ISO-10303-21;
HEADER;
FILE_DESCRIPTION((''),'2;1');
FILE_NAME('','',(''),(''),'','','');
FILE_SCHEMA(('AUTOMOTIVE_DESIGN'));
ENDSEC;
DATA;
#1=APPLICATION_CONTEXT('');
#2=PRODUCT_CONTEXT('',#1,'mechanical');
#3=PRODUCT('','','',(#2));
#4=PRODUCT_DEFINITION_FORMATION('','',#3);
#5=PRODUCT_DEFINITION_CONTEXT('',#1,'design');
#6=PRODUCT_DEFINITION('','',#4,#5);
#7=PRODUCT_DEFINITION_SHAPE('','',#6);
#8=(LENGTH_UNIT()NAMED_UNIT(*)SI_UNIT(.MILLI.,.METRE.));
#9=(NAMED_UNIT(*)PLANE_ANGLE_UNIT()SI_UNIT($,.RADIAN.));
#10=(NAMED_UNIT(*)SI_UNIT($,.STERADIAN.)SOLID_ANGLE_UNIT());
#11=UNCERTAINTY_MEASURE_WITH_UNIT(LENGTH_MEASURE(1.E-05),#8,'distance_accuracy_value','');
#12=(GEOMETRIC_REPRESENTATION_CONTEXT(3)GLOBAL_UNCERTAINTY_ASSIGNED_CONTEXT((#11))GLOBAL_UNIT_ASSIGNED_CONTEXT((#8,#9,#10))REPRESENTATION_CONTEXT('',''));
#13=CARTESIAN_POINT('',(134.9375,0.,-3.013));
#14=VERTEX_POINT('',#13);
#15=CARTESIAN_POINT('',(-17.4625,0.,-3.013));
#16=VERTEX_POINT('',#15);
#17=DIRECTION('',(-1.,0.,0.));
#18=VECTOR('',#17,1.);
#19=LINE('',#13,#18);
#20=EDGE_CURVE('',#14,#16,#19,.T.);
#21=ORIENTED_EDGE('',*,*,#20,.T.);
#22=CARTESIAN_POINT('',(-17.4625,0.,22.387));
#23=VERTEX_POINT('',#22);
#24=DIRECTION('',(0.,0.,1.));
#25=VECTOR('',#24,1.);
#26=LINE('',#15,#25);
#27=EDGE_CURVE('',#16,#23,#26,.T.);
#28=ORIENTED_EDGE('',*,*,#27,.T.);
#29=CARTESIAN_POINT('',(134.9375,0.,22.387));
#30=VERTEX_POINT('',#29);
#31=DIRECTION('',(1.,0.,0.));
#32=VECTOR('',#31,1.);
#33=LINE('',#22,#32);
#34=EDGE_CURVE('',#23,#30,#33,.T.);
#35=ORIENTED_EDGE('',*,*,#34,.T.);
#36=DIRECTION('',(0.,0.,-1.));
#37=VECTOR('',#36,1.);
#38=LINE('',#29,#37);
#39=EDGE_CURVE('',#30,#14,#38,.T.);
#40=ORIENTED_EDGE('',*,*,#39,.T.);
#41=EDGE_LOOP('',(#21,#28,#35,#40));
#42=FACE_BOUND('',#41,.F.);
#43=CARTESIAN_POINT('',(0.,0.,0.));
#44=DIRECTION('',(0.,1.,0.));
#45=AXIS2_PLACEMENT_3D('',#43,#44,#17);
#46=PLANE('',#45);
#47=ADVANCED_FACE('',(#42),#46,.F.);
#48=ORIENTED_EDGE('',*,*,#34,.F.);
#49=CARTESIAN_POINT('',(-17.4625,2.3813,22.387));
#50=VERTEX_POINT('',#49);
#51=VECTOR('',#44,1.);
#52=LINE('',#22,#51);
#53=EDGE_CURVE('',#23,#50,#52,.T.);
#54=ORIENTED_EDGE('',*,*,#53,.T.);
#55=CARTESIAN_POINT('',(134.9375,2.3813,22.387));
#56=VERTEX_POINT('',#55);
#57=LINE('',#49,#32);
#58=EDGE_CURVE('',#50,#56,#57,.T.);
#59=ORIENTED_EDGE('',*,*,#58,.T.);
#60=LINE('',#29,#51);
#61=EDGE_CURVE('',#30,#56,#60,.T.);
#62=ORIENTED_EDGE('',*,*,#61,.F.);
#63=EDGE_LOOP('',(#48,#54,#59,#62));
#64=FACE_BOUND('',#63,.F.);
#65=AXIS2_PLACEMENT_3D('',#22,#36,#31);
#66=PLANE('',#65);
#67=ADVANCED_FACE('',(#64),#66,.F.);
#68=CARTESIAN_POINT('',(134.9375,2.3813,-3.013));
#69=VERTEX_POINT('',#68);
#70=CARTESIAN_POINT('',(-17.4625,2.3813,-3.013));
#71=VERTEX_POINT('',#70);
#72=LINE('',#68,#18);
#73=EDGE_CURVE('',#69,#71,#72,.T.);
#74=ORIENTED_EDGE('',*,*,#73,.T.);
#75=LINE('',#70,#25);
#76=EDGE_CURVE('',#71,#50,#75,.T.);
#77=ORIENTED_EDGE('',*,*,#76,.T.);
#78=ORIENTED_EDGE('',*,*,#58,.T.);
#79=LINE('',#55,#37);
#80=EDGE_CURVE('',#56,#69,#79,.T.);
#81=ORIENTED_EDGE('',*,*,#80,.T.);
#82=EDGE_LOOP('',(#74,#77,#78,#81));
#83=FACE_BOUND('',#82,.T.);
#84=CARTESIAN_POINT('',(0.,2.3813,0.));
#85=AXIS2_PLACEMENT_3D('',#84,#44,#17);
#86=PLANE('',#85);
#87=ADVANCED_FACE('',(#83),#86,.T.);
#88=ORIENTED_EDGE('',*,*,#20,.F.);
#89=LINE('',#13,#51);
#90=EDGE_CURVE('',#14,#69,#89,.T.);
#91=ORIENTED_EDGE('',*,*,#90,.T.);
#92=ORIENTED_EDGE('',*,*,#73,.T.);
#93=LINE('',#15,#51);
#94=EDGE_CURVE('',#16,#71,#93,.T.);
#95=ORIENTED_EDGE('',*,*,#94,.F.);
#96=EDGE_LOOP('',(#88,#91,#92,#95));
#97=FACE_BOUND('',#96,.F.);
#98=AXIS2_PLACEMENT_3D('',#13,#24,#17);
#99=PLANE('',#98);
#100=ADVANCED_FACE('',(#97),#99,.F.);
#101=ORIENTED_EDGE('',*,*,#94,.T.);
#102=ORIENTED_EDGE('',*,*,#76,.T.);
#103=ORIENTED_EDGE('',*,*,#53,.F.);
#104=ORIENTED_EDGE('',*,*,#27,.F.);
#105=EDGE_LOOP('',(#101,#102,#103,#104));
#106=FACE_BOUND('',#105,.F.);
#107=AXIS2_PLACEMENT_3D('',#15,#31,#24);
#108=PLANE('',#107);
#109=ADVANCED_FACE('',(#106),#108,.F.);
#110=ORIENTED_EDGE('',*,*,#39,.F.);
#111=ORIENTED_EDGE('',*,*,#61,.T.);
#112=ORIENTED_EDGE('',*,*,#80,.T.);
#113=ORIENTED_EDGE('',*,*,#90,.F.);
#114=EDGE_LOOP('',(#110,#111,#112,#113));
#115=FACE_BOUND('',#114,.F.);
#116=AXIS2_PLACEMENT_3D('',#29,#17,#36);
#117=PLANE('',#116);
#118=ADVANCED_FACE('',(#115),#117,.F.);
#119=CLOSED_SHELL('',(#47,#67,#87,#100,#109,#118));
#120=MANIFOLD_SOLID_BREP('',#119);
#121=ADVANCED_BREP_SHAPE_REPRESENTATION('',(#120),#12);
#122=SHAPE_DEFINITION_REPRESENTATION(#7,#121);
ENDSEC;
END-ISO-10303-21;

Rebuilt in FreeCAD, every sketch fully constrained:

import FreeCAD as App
import Part
import Sketcher
from FreeCAD import Vector
Q = App.Units.Quantity


def add_polygon(sketch, points):
    """Adds a closed chain of lines whose ends are joined by coincident constraints."""
    first, n = sketch.GeometryCount, len(points)
    for a, b in zip(points, points[1:] + points[:1]):
        sketch.addGeometry(Part.LineSegment(App.Vector(*a, 0), App.Vector(*b, 0)), False)
    for i in range(n):
        sketch.addConstraint(Sketcher.Constraint("Coincident", first + i, 2, first + (i + 1) % n, 1))

doc = App.newDocument("Part")
params = doc.addObject("Spreadsheet::Sheet", "Params")
for row, (alias, value) in enumerate([
    ("sketch1_width", "6 in"),
    ("sketch1_height", "1 in"),
    ("pad1_length", "0.093752 in"),
], start=1):
    params.set(f"A{row}", alias)
    params.set(f"B{row}", "=" + value)
    params.setAlias(f"B{row}", alias)

body = doc.addObject("PartDesign::Body", "Body")

sketch1 = body.newObject("Sketcher::SketchObject", "Sketch")
sketch1.AttachmentSupport = (doc.getObject("XZ_Plane"), [""])
sketch1.MapMode = "FlatFace"
add_polygon(sketch1, [(-17, -3), (-17, 22), (135, 22), (135, -3)])
sketch1.addConstraint([
    Sketcher.Constraint("Vertical", 0),
    Sketcher.Constraint("Horizontal", 1),
    Sketcher.Constraint("Vertical", 2),
    Sketcher.Constraint("Horizontal", 3),
    Sketcher.Constraint("DistanceX", 1, 1, 1, 2, Q("6 in")),
    Sketcher.Constraint("DistanceY", 0, 1, 0, 2, Q("1 in")),
    Sketcher.Constraint("DistanceX", 0, 2, -1, 1, Q("0.6875 in")),
    Sketcher.Constraint("DistanceY", -1, 1, 0, 2, Q("22.387 mm")),
])
sketch1.setExpression("Constraints[8]", "Params.sketch1_width")
sketch1.setExpression("Constraints[9]", "Params.sketch1_height")
pad1 = body.newObject("PartDesign::Pad", "Pad")
pad1.Profile = sketch1
pad1.setExpression("Length", "Params.pad1_length")
pad1.Reversed = True

doc.recompute()
